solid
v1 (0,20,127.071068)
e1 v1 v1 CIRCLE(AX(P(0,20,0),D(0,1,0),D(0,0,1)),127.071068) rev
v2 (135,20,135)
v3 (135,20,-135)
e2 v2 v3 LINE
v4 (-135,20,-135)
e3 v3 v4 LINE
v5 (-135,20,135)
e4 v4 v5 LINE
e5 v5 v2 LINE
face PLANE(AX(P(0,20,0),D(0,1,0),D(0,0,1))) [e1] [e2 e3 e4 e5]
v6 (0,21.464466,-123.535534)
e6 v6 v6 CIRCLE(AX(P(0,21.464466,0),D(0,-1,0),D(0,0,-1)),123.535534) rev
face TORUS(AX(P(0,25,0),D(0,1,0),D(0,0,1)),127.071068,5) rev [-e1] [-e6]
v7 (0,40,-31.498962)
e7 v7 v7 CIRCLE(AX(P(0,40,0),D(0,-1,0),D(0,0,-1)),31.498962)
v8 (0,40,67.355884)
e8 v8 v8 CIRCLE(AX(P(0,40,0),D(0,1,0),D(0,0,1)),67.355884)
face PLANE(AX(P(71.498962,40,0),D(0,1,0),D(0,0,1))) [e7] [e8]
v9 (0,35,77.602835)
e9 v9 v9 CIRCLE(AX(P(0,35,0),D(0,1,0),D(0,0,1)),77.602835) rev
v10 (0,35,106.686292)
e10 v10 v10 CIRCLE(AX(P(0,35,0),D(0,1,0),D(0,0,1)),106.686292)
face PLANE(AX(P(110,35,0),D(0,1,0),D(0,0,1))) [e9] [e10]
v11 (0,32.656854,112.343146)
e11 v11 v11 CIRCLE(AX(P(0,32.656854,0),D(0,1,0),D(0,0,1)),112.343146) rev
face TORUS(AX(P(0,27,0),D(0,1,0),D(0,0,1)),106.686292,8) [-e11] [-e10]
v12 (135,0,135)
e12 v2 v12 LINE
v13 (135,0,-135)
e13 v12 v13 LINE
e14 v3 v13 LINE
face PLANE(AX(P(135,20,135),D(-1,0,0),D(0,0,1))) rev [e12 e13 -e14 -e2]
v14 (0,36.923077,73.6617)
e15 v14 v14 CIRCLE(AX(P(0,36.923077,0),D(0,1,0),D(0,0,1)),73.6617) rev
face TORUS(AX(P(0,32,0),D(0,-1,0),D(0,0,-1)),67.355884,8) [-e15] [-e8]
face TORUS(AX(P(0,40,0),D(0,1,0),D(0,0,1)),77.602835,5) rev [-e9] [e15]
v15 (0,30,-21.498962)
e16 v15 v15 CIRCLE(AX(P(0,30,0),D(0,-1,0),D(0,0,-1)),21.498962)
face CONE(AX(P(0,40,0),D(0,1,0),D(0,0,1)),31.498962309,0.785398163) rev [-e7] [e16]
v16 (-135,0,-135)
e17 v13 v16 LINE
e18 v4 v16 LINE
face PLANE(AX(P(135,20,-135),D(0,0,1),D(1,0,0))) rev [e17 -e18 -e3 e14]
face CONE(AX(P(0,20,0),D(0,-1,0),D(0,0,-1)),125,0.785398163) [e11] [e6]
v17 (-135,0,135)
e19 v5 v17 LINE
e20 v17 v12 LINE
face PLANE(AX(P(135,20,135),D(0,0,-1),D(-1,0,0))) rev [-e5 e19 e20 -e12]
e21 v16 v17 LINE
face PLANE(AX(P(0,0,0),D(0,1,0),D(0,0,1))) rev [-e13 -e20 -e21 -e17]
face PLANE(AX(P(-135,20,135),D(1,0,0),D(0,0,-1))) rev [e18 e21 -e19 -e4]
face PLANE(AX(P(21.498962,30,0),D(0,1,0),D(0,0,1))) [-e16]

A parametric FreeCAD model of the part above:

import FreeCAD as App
import Part
import Sketcher

V = App.Vector
Q = App.Units.Quantity


def edges_at(feature, points):
    """Names of the edges that pass closest to the given points."""
    edges = feature.Shape.Edges
    near = lambda p: min(range(len(edges)), key=lambda i: edges[i].distToShape(Part.Vertex(*p))[0])
    return sorted({f"Edge{near(p) + 1}" for p in points})

doc = App.newDocument("Part")
params = doc.addObject("Spreadsheet::Sheet", "Params")
for row, (alias, value) in enumerate([
    ("sketch1_width", "270 mm"),
    ("pad1_length", "20 mm"),
    ("sketch2_width", "125 mm"),
    ("sketch2_width2", "35 mm"),
    ("sketch2_width3", "40 mm"),
    ("sketch2_height", "10 mm"),
    ("revolution_angle", "360 deg"),
    ("fillet_radius", "5 mm"),
    ("fillet2_radius", "8 mm"),
], start=1):
    params.set(f"A{row}", alias)
    params.set(f"B{row}", "=" + value)
    params.setAlias(f"B{row}", alias)

body = doc.addObject("PartDesign::Body", "Body")

# Sketch on XZ plane
sketch1 = doc.addObject("Sketcher::SketchObject", "Sketch")
body.addObject(sketch1)
sketch1.AttachmentSupport = (doc.XZ_Plane, [""])
sketch1.MapMode = "FlatFace"
sketch1.addGeometry([
    Part.LineSegment(V(-135, -135, 0), V(-135, 135, 0)),
    Part.LineSegment(V(-135, 135, 0), V(135, 135, 0)),
    Part.LineSegment(V(135, 135, 0), V(135, -135, 0)),
    Part.LineSegment(V(135, -135, 0), V(-135, -135, 0)),
], False)
sketch1.addConstraint([
    Sketcher.Constraint("Coincident", 0, 2, 1, 1),
    Sketcher.Constraint("Coincident", 1, 2, 2, 1),
    Sketcher.Constraint("Coincident", 2, 2, 3, 1),
    Sketcher.Constraint("Coincident", 3, 2, 0, 1),
    Sketcher.Constraint("Vertical", 0),
    Sketcher.Constraint("Horizontal", 1),
    Sketcher.Constraint("Vertical", 2),
    Sketcher.Constraint("Horizontal", 3),
    Sketcher.Constraint("Symmetric", 0, 2, 2, 2, -1, 1),
    Sketcher.Constraint("Equal", 3, 0),
    Sketcher.Constraint("DistanceX", 1, 1, 1, 2, Q("270 mm")),
])
sketch1.setExpression("Constraints[10]", "Params.sketch1_width")
pad1 = doc.addObject("PartDesign::Pad", "Pad")
body.addObject(pad1)
pad1.Profile = sketch1
pad1.setExpression("Length", "Params.pad1_length")
pad1.Reversed = True

# Sketch on XY plane
sketch2 = doc.addObject("Sketcher::SketchObject", "Sketch001")
body.addObject(sketch2)
sketch2.AttachmentSupport = (doc.XY_Plane, [""])
sketch2.MapMode = "FlatFace"
sketch2.addGeometry([
    Part.LineSegment(V(0, 20, 0), V(125, 20, 0)),  # 0
    Part.LineSegment(V(125, 20, 0), V(110, 35, 0)),  # 1
    Part.LineSegment(V(110, 35, 0), V(75, 35, 0)),  # 2
    Part.LineSegment(V(75, 35, 0), V(71, 40, 0)),  # 3
    Part.LineSegment(V(71, 40, 0), V(31, 40, 0)),  # 4
    Part.LineSegment(V(31, 40, 0), V(21, 30, 0)),  # 5
    Part.LineSegment(V(21, 30, 0), V(0, 30, 0)),  # 6
    Part.LineSegment(V(0, 30, 0), V(0, 20, 0)),  # 7
], False)
sketch2.addConstraint([
    Sketcher.Constraint("Coincident", 0, 2, 1, 1),
    Sketcher.Constraint("Coincident", 1, 2, 2, 1),
    Sketcher.Constraint("Coincident", 2, 2, 3, 1),
    Sketcher.Constraint("Coincident", 3, 2, 4, 1),
    Sketcher.Constraint("Coincident", 4, 2, 5, 1),
    Sketcher.Constraint("Coincident", 5, 2, 6, 1),
    Sketcher.Constraint("Coincident", 6, 2, 7, 1),
    Sketcher.Constraint("Coincident", 7, 2, 0, 1),
    Sketcher.Constraint("Horizontal", 0),
    Sketcher.Constraint("Horizontal", 2),
    Sketcher.Constraint("Horizontal", 4),
    Sketcher.Constraint("Horizontal", 6),
    Sketcher.Constraint("Vertical", 7),
    Sketcher.Constraint("PointOnObject", 6, 2, -2),
    Sketcher.Constraint("Perpendicular", 1, 5),
    Sketcher.Constraint("DistanceX", 0, 1, 0, 2, Q("125 mm")),
    Sketcher.Constraint("DistanceX", 2, 2, 2, 1, Q("35 mm")),
    Sketcher.Constraint("DistanceX", 4, 2, 4, 1, Q("40 mm")),
    Sketcher.Constraint("DistanceY", 7, 2, 7, 1, Q("10 mm")),
    Sketcher.Constraint("Angle", 1, Q("135 deg")),
    Sketcher.Constraint("Angle", 3, Q("125 deg")),
    Sketcher.Constraint("DistanceY", -1, 1, 0, 2, Q("20 mm")),
    Sketcher.Constraint("DistanceX", -1, 1, 1, 2, Q("110 mm")),
    Sketcher.Constraint("DistanceY", -1, 1, 3, 2, Q("40 mm")),
])
sketch2.setExpression("Constraints[15]", "Params.sketch2_width")
sketch2.setExpression("Constraints[16]", "Params.sketch2_width2")
sketch2.setExpression("Constraints[17]", "Params.sketch2_width3")
sketch2.setExpression("Constraints[18]", "Params.sketch2_height")
revolution = doc.addObject("PartDesign::Revolution", "Revolution")
body.addObject(revolution)
revolution.Profile = sketch2
revolution.ReferenceAxis = (sketch2, ["V_Axis"])
revolution.setExpression("Angle", "Params.revolution_angle")
doc.recompute()

fillet = doc.addObject("PartDesign::Fillet", "Fillet")
body.addObject(fillet)
fillet.Base = (revolution, edges_at(revolution, [(-125, 20, 0), (-75, 35, 0)]))
fillet.setExpression("Radius", "Params.fillet_radius")
doc.recompute()

fillet2 = doc.addObject("PartDesign::Fillet", "Fillet001")
body.addObject(fillet2)
fillet2.Base = (fillet, edges_at(fillet, [(-71.499, 40, 0), (-110, 35, 0)]))
fillet2.setExpression("Radius", "Params.fillet2_radius")

doc.recompute()
